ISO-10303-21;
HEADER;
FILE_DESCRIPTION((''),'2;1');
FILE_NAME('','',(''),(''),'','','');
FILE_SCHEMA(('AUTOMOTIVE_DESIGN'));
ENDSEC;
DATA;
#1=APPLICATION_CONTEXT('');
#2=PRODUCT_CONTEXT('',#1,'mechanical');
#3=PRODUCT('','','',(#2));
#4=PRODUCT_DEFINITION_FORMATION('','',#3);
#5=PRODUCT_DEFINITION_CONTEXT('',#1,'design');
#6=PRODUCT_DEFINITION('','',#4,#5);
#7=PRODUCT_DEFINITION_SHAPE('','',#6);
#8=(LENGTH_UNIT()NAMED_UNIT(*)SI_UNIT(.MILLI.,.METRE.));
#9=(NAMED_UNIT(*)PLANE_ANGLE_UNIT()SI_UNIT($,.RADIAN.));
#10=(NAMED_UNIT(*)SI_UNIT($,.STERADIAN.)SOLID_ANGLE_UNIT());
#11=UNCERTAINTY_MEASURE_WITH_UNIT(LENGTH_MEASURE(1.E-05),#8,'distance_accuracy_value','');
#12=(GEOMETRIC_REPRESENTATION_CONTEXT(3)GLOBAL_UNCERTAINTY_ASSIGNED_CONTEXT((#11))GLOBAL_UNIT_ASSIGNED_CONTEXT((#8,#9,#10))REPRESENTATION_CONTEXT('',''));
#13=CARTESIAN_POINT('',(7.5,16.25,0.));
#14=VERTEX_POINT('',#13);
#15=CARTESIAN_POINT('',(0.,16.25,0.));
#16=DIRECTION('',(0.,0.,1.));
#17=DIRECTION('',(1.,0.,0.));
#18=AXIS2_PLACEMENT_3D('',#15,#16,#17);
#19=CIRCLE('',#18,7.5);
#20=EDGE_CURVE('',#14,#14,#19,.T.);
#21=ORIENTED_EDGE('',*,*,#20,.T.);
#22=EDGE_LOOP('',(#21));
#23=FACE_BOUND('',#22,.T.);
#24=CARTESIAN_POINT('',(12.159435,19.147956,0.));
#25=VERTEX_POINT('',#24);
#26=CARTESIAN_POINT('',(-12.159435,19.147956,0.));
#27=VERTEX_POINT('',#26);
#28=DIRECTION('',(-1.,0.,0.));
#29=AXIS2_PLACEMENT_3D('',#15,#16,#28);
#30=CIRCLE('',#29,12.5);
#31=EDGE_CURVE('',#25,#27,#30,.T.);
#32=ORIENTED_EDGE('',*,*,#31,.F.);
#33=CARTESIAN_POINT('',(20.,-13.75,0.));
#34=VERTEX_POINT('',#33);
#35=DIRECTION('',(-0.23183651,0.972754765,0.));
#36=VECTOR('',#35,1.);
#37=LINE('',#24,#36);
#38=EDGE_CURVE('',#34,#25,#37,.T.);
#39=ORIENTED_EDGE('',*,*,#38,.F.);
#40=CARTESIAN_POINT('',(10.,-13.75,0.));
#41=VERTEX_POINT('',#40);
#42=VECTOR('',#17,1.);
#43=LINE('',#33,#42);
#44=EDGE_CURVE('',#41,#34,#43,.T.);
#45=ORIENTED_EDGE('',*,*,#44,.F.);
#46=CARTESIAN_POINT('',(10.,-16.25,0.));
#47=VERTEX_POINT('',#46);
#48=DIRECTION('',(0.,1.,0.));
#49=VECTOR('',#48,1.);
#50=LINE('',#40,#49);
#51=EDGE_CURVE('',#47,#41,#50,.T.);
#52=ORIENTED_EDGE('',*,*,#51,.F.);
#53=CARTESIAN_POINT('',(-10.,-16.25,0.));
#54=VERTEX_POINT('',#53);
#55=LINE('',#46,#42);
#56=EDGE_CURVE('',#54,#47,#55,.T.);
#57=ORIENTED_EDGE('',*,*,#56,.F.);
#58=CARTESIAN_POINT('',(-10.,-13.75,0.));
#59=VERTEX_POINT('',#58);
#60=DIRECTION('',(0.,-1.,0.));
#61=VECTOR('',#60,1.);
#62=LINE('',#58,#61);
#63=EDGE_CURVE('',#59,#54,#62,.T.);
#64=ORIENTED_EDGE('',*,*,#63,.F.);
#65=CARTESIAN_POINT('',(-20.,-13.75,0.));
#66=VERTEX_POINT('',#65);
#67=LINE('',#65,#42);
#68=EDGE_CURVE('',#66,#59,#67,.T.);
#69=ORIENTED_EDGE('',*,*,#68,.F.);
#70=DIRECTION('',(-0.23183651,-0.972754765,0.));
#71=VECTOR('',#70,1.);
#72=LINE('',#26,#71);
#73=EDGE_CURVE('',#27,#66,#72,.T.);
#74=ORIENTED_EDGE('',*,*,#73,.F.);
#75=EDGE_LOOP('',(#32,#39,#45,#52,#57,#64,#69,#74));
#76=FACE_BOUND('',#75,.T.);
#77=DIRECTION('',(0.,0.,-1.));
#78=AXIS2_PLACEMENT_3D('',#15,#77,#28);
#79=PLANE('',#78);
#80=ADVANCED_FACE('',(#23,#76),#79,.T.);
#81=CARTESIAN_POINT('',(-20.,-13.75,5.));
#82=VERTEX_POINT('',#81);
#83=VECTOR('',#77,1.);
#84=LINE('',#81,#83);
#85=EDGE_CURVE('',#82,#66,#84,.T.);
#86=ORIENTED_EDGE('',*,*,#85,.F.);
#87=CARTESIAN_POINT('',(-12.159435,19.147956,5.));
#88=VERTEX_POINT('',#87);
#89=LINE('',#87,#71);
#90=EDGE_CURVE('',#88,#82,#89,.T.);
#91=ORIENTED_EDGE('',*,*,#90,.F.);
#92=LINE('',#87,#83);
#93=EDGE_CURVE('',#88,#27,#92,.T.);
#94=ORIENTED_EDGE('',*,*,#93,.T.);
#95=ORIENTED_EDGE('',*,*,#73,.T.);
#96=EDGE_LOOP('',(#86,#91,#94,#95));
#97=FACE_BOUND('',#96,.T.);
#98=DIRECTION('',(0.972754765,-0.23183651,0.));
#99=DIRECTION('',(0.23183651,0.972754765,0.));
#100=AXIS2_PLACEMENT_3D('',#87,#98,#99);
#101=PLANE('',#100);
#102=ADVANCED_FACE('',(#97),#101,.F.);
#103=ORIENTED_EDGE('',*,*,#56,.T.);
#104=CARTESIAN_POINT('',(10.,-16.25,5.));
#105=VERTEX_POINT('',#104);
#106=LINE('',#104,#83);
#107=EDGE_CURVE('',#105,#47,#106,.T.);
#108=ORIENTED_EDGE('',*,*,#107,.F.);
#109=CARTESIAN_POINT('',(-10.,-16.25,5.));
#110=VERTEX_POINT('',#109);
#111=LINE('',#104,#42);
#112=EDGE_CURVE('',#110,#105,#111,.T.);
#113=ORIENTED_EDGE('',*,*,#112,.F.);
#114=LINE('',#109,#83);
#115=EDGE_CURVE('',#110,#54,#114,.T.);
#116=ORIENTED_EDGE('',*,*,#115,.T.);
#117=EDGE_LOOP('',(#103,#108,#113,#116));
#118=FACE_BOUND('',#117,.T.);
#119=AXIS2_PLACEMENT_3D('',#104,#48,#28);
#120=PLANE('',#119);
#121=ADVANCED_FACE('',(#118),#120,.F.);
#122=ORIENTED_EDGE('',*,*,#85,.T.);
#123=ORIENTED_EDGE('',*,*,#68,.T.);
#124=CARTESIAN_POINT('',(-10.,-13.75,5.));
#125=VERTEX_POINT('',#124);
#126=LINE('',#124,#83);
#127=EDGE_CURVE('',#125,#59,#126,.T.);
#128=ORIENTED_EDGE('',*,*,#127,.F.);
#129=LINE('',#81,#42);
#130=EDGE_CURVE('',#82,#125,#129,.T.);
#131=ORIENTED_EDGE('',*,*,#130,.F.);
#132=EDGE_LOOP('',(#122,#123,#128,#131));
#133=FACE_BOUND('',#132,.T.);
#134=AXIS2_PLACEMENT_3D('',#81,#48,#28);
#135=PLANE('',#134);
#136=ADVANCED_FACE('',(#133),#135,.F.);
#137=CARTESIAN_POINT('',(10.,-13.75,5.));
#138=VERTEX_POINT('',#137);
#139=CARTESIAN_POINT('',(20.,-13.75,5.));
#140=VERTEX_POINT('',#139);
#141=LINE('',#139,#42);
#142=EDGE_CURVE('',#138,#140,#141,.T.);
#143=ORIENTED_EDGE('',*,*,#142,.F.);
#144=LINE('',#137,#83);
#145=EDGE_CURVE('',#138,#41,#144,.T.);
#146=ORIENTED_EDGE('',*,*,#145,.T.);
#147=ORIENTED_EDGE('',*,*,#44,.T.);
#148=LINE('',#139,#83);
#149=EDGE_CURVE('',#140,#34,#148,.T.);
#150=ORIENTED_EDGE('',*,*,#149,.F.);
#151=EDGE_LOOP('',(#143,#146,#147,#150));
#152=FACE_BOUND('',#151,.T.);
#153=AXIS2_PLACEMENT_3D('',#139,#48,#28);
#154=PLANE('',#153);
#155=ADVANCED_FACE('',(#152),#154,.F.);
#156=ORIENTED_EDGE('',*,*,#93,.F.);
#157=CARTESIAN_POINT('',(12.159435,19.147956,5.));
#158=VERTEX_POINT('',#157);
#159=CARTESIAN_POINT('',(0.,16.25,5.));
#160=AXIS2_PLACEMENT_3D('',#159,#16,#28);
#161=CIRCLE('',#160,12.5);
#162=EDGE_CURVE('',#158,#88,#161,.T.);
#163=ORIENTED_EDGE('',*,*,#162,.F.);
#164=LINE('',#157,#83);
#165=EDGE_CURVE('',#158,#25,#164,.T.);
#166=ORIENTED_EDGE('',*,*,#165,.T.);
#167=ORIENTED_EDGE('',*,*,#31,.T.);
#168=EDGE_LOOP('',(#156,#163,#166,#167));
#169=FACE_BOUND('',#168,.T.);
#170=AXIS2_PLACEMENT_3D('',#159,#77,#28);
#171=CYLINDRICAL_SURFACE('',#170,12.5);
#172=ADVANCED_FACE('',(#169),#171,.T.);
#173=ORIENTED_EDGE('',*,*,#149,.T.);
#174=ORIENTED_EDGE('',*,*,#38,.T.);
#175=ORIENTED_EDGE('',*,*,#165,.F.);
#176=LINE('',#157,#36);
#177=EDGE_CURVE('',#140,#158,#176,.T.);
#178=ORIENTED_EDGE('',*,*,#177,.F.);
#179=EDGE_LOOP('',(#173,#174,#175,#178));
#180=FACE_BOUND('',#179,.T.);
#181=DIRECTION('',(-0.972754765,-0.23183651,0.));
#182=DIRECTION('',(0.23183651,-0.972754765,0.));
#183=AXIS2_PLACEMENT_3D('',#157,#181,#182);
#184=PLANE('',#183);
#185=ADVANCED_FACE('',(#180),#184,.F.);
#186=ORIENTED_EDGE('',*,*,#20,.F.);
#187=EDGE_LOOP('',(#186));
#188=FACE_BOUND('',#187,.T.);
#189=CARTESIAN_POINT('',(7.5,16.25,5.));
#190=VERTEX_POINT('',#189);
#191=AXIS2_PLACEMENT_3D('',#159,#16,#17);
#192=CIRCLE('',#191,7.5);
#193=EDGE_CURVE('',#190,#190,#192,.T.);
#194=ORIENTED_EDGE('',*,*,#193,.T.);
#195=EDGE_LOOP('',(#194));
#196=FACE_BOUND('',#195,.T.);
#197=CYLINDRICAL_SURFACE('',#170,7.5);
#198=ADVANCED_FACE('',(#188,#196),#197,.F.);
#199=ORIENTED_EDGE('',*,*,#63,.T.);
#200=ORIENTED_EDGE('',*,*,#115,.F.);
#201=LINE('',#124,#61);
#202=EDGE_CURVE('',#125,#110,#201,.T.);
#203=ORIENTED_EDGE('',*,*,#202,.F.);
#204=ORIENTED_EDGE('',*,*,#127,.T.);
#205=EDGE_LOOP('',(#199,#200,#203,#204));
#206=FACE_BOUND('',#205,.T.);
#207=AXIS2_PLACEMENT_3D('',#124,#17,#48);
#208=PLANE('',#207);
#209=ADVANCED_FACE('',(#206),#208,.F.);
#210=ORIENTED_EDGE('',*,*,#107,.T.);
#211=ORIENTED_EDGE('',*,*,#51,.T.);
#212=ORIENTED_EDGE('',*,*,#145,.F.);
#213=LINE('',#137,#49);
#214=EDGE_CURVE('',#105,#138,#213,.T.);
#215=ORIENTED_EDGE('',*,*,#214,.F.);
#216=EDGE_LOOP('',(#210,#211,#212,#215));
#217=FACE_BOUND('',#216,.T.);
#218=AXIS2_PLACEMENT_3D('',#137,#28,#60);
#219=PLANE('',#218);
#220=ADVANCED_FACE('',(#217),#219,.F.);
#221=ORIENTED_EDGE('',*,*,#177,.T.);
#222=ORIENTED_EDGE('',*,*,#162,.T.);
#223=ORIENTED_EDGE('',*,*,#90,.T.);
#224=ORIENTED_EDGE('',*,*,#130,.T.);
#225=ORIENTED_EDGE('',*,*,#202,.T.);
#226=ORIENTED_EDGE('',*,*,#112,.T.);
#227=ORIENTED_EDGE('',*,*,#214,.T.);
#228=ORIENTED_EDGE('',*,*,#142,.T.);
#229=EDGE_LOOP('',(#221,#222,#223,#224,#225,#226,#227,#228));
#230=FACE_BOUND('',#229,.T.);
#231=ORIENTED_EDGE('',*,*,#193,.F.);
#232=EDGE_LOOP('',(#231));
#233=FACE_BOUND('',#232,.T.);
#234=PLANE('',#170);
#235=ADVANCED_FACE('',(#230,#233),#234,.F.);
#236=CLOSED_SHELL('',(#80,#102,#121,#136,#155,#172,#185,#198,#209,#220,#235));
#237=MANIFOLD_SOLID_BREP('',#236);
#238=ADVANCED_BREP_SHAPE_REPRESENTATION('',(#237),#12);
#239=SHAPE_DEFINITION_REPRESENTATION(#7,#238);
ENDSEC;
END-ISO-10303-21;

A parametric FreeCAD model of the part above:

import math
import FreeCAD as App
import Part
import Sketcher
from FreeCAD import Vector
Q = App.Units.Quantity

doc = App.newDocument("Part")
body = doc.addObject("PartDesign::Body", "Body")

sketch1 = body.newObject("Sketcher::SketchObject", "Sketch")
sketch1.AttachmentSupport = (doc.getObject("XY_Plane"), [""])
sketch1.MapMode = "FlatFace"
sketch1.addGeometry(Part.LineSegment(Vector(20, -13.8, 0), Vector(12.2, 19.1, 0)), False)
sketch1.addGeometry(Part.ArcOfCircle(Part.Circle(Vector(0, 16.3, 0), Vector(0, 0, 1), 12.5), math.radians(13), math.radians(167)), False)
sketch1.addGeometry(Part.LineSegment(Vector(-12.2, 19.1, 0), Vector(-20, -13.8, 0)), False)
sketch1.addGeometry(Part.LineSegment(Vector(-20, -13.8, 0), Vector(-10, -13.8, 0)), False)
sketch1.addGeometry(Part.LineSegment(Vector(-10, -13.8, 0), Vector(-10, -16.2, 0)), False)
sketch1.addGeometry(Part.LineSegment(Vector(-10, -16.2, 0), Vector(10, -16.2, 0)), False)
sketch1.addGeometry(Part.LineSegment(Vector(10, -16.2, 0), Vector(10, -13.8, 0)), False)
sketch1.addGeometry(Part.LineSegment(Vector(10, -13.8, 0), Vector(20, -13.8, 0)), False)
sketch1.addGeometry(Part.Circle(Vector(0, 16.2, 0), Vector(0, 0, 1), 7.5), False)
sketch1.addConstraint(Sketcher.Constraint("Tangent", 0, 2, 1, 1))
sketch1.addConstraint(Sketcher.Constraint("Tangent", 1, 2, 2, 1))
sketch1.addConstraint(Sketcher.Constraint("Coincident", 2, 2, 3, 1))
sketch1.addConstraint(Sketcher.Constraint("Coincident", 3, 2, 4, 1))
sketch1.addConstraint(Sketcher.Constraint("Coincident", 4, 2, 5, 1))
sketch1.addConstraint(Sketcher.Constraint("Coincident", 5, 2, 6, 1))
sketch1.addConstraint(Sketcher.Constraint("Coincident", 6, 2, 7, 1))
sketch1.addConstraint(Sketcher.Constraint("Coincident", 7, 2, 0, 1))
sketch1.addConstraint(Sketcher.Constraint("Horizontal", 3))
sketch1.addConstraint(Sketcher.Constraint("Vertical", 4))
sketch1.addConstraint(Sketcher.Constraint("Horizontal", 5))
sketch1.addConstraint(Sketcher.Constraint("Vertical", 6))
sketch1.addConstraint(Sketcher.Constraint("Horizontal", 7))
sketch1.addConstraint(Sketcher.Constraint("Coincident", 8, 3, 1, 3))
sketch1.addConstraint(Sketcher.Constraint("Symmetric", 0, 2, 1, 2, -2))
sketch1.addConstraint(Sketcher.Constraint("Symmetric", 3, 2, 6, 2, -2))
sketch1.addConstraint(Sketcher.Constraint("Diameter", 8, Q("15 mm")))
sketch1.addConstraint(Sketcher.Constraint("Radius", 1, Q("12.5 mm")))
sketch1.addConstraint(Sketcher.Constraint("DistanceX", 3, 1, 3, 2, Q("10 mm")))
sketch1.addConstraint(Sketcher.Constraint("DistanceX", 5, 1, 5, 2, Q("20 mm")))
sketch1.addConstraint(Sketcher.Constraint("DistanceY", 4, 2, 4, 1, Q("2.5 mm")))
sketch1.addConstraint(Sketcher.Constraint("DistanceY", 2, 2, 8, 3, Q("30 mm")))
sketch1.addConstraint(Sketcher.Constraint("DistanceY", -1, 1, 1, 3, Q("16.25 mm")))
pad1 = body.newObject("PartDesign::Pad", "Pad")
pad1.Profile = sketch1
pad1.Length = 5

doc.recompute()
